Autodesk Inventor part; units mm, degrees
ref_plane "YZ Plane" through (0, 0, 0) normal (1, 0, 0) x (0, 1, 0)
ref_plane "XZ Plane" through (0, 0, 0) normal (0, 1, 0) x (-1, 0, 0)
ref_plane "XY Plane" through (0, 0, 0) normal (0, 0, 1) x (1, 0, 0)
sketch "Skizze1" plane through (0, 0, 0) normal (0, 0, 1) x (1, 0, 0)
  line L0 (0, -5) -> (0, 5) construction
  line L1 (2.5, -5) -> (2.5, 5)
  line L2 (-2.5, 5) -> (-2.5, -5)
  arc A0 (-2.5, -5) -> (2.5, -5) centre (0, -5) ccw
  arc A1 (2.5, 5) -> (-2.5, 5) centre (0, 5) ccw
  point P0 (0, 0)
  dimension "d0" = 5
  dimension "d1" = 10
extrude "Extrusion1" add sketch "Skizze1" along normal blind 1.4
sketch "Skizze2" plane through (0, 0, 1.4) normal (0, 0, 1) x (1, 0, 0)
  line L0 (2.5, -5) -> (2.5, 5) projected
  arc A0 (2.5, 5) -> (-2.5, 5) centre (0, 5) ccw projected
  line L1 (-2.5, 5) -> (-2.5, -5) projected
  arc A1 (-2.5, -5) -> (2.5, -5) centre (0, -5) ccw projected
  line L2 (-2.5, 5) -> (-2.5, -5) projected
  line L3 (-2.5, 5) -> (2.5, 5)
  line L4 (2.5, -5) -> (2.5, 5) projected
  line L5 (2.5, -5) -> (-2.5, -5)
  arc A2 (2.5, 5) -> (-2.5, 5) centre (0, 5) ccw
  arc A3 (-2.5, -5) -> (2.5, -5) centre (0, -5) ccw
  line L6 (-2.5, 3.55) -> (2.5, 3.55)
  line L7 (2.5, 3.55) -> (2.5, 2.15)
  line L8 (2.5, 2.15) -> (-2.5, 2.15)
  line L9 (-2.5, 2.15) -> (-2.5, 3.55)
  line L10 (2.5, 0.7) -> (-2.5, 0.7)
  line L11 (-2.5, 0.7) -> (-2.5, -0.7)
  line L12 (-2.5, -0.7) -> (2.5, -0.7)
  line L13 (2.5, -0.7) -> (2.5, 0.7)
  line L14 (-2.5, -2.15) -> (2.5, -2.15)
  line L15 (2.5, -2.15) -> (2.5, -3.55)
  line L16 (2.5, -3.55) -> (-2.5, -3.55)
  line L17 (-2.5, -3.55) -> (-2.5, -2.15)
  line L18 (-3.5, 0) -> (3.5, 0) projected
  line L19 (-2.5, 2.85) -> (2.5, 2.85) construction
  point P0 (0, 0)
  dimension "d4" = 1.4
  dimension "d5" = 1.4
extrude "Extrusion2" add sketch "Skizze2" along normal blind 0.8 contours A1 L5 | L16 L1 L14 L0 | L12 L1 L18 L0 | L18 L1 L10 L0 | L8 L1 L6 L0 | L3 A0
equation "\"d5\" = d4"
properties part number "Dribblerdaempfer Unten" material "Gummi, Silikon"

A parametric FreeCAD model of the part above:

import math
import FreeCAD as App
import Part
import Sketcher
from FreeCAD import Vector


def add_polygon(sketch, points):
    """Adds a closed chain of lines whose ends are joined by coincident constraints."""
    first, n = sketch.GeometryCount, len(points)
    for a, b in zip(points, points[1:] + points[:1]):
        sketch.addGeometry(Part.LineSegment(App.Vector(*a, 0), App.Vector(*b, 0)), False)
    for i in range(n):
        sketch.addConstraint(Sketcher.Constraint("Coincident", first + i, 2, first + (i + 1) % n, 1))

doc = App.newDocument("Part")
params = doc.addObject("Spreadsheet::Sheet", "Params")
for row, (alias, value) in enumerate([
    ("sketch1_radius", "2.5 mm"),
    ("sketch1_height", "10 mm"),
    ("pad1_length", "1.4 mm"),
    ("sketch2_height", "1.4 mm"),
    ("sketch2_radius", "2.5 mm"),
    ("pad2_length", "0.8 mm"),
], start=1):
    params.set(f"A{row}", alias)
    params.set(f"B{row}", "=" + value)
    params.setAlias(f"B{row}", alias)

body = doc.addObject("PartDesign::Body", "Body")

sketch1 = body.newObject("Sketcher::SketchObject", "Sketch")
sketch1.AttachmentSupport = (doc.getObject("XY_Plane"), [""])
sketch1.MapMode = "FlatFace"
sketch1.addGeometry(Part.ArcOfCircle(Part.Circle(Vector(0, -5, 0), Vector(0, 0, 1), 2.5), math.radians(180), math.radians(360)), False)
sketch1.addGeometry(Part.LineSegment(Vector(2.5, -5, 0), Vector(2.5, 5, 0)), False)
sketch1.addGeometry(Part.ArcOfCircle(Part.Circle(Vector(0, 5, 0), Vector(0, 0, 1), 2.5), math.radians(0), math.radians(180)), False)
sketch1.addGeometry(Part.LineSegment(Vector(-2.5, 5, 0), Vector(-2.5, -5, 0)), False)
sketch1.addConstraint(Sketcher.Constraint("Tangent", 0, 2, 1, 1))
sketch1.addConstraint(Sketcher.Constraint("Tangent", 1, 2, 2, 1))
sketch1.addConstraint(Sketcher.Constraint("Tangent", 2, 2, 3, 1))
sketch1.addConstraint(Sketcher.Constraint("Tangent", 3, 2, 0, 1))
sketch1.addConstraint(Sketcher.Constraint("Vertical", 1))
sketch1.addConstraint(Sketcher.Constraint("Vertical", 3))
sketch1.addConstraint(Sketcher.Constraint("Symmetric", 0, 3, 2, 3, -1, 1))
sketch1.addConstraint(Sketcher.Constraint("Radius", 0, 2.5))
sketch1.addConstraint(Sketcher.Constraint("DistanceY", 1, 1, 1, 2, 10.0))
sketch1.setExpression("Constraints[7]", "Params.sketch1_radius")
sketch1.setExpression("Constraints[8]", "Params.sketch1_height")
pad1 = body.newObject("PartDesign::Pad", "Pad")
pad1.Profile = sketch1
pad1.setExpression("Length", "Params.pad1_length")

sketch2 = body.newObject("Sketcher::SketchObject", "Sketch001")
sketch2.AttachmentSupport = (doc.getObject("XY_Plane"), [""])
sketch2.MapMode = "FlatFace"
sketch2.AttachmentOffset = App.Placement(Vector(0, 0, 1.4), App.Rotation())
sketch2.addGeometry(Part.ArcOfCircle(Part.Circle(Vector(0, -5, 0), Vector(0, 0, 1), 2.5), math.radians(180), math.radians(360)), False)
sketch2.addGeometry(Part.LineSegment(Vector(2.5, -5, 0), Vector(-2.5, -5, 0)), False)
add_polygon(sketch2, [(-2.5, -3.5), (2.5, -3.5), (2.5, -2.1), (-2.5, -2.1)])
add_polygon(sketch2, [(-2.5, -0.7), (2.5, -0.7), (2.5, 0.7), (-2.5, 0.7)])
add_polygon(sketch2, [(-2.5, 2.1), (2.5, 2.1), (2.5, 3.5), (-2.5, 3.5)])
sketch2.addGeometry(Part.LineSegment(Vector(-2.5, 5, 0), Vector(2.5, 5, 0)), False)
sketch2.addGeometry(Part.ArcOfCircle(Part.Circle(Vector(0, 5, 0), Vector(0, 0, 1), 2.5), math.radians(0), math.radians(180)), False)
sketch2.addConstraint(Sketcher.Constraint("Coincident", 0, 1, 1, 2))
sketch2.addConstraint(Sketcher.Constraint("Coincident", 1, 1, 0, 2))
sketch2.addConstraint(Sketcher.Constraint("Coincident", 14, 1, 15, 2))
sketch2.addConstraint(Sketcher.Constraint("Coincident", 15, 1, 14, 2))
sketch2.addConstraint(Sketcher.Constraint("Horizontal", 1))
sketch2.addConstraint(Sketcher.Constraint("Horizontal", 2))
sketch2.addConstraint(Sketcher.Constraint("Vertical", 3))
sketch2.addConstraint(Sketcher.Constraint("Horizontal", 4))
sketch2.addConstraint(Sketcher.Constraint("Vertical", 5))
sketch2.addConstraint(Sketcher.Constraint("Horizontal", 6))
sketch2.addConstraint(Sketcher.Constraint("Vertical", 7))
sketch2.addConstraint(Sketcher.Constraint("Horizontal", 8))
sketch2.addConstraint(Sketcher.Constraint("Vertical", 9))
sketch2.addConstraint(Sketcher.Constraint("Horizontal", 10))
sketch2.addConstraint(Sketcher.Constraint("Vertical", 11))
sketch2.addConstraint(Sketcher.Constraint("Horizontal", 12))
sketch2.addConstraint(Sketcher.Constraint("Vertical", 13))
sketch2.addConstraint(Sketcher.Constraint("Horizontal", 14))
sketch2.addConstraint(Sketcher.Constraint("Equal", 0, 15))
sketch2.addConstraint(Sketcher.Constraint("Symmetric", 0, 3, 15, 3, -1, 1))
sketch2.addConstraint(Sketcher.Constraint("Symmetric", 6, 2, 8, 2, -1, 1))
sketch2.addConstraint(Sketcher.Constraint("Symmetric", 4, 2, 10, 2, -1, 1))
sketch2.addConstraint(Sketcher.Constraint("Symmetric", 2, 2, 12, 2, -1, 1))
sketch2.addConstraint(Sketcher.Constraint("Symmetric", 0, 1, 14, 1, -1))
sketch2.addConstraint(Sketcher.Constraint("Horizontal", 15, 3, 14, 1))
sketch2.addConstraint(Sketcher.Constraint("Vertical", 1, 1, 2, 2))
sketch2.addConstraint(Sketcher.Constraint("Vertical", 0, 1, 4, 2))
sketch2.addConstraint(Sketcher.Constraint("Vertical", 3, 2, 6, 2))
sketch2.addConstraint(Sketcher.Constraint("Equal", 5, 7))
sketch2.addConstraint(Sketcher.Constraint("DistanceY", 3, 1, 3, 2, 1.4))
sketch2.addConstraint(Sketcher.Constraint("Radius", 0, 2.5))
sketch2.addConstraint(Sketcher.Constraint("DistanceY", 0, 3, -1, 1, 5.0))
sketch2.addConstraint(Sketcher.Constraint("DistanceY", 3, 2, 10, 2, 4.3))
sketch2.setExpression("Constraints[41]", "Params.sketch2_height")
sketch2.setExpression("Constraints[42]", "Params.sketch2_radius")
pad2 = body.newObject("PartDesign::Pad", "Pad001")
pad2.Profile = sketch2
pad2.setExpression("Length", "Params.pad2_length")

doc.recompute()
